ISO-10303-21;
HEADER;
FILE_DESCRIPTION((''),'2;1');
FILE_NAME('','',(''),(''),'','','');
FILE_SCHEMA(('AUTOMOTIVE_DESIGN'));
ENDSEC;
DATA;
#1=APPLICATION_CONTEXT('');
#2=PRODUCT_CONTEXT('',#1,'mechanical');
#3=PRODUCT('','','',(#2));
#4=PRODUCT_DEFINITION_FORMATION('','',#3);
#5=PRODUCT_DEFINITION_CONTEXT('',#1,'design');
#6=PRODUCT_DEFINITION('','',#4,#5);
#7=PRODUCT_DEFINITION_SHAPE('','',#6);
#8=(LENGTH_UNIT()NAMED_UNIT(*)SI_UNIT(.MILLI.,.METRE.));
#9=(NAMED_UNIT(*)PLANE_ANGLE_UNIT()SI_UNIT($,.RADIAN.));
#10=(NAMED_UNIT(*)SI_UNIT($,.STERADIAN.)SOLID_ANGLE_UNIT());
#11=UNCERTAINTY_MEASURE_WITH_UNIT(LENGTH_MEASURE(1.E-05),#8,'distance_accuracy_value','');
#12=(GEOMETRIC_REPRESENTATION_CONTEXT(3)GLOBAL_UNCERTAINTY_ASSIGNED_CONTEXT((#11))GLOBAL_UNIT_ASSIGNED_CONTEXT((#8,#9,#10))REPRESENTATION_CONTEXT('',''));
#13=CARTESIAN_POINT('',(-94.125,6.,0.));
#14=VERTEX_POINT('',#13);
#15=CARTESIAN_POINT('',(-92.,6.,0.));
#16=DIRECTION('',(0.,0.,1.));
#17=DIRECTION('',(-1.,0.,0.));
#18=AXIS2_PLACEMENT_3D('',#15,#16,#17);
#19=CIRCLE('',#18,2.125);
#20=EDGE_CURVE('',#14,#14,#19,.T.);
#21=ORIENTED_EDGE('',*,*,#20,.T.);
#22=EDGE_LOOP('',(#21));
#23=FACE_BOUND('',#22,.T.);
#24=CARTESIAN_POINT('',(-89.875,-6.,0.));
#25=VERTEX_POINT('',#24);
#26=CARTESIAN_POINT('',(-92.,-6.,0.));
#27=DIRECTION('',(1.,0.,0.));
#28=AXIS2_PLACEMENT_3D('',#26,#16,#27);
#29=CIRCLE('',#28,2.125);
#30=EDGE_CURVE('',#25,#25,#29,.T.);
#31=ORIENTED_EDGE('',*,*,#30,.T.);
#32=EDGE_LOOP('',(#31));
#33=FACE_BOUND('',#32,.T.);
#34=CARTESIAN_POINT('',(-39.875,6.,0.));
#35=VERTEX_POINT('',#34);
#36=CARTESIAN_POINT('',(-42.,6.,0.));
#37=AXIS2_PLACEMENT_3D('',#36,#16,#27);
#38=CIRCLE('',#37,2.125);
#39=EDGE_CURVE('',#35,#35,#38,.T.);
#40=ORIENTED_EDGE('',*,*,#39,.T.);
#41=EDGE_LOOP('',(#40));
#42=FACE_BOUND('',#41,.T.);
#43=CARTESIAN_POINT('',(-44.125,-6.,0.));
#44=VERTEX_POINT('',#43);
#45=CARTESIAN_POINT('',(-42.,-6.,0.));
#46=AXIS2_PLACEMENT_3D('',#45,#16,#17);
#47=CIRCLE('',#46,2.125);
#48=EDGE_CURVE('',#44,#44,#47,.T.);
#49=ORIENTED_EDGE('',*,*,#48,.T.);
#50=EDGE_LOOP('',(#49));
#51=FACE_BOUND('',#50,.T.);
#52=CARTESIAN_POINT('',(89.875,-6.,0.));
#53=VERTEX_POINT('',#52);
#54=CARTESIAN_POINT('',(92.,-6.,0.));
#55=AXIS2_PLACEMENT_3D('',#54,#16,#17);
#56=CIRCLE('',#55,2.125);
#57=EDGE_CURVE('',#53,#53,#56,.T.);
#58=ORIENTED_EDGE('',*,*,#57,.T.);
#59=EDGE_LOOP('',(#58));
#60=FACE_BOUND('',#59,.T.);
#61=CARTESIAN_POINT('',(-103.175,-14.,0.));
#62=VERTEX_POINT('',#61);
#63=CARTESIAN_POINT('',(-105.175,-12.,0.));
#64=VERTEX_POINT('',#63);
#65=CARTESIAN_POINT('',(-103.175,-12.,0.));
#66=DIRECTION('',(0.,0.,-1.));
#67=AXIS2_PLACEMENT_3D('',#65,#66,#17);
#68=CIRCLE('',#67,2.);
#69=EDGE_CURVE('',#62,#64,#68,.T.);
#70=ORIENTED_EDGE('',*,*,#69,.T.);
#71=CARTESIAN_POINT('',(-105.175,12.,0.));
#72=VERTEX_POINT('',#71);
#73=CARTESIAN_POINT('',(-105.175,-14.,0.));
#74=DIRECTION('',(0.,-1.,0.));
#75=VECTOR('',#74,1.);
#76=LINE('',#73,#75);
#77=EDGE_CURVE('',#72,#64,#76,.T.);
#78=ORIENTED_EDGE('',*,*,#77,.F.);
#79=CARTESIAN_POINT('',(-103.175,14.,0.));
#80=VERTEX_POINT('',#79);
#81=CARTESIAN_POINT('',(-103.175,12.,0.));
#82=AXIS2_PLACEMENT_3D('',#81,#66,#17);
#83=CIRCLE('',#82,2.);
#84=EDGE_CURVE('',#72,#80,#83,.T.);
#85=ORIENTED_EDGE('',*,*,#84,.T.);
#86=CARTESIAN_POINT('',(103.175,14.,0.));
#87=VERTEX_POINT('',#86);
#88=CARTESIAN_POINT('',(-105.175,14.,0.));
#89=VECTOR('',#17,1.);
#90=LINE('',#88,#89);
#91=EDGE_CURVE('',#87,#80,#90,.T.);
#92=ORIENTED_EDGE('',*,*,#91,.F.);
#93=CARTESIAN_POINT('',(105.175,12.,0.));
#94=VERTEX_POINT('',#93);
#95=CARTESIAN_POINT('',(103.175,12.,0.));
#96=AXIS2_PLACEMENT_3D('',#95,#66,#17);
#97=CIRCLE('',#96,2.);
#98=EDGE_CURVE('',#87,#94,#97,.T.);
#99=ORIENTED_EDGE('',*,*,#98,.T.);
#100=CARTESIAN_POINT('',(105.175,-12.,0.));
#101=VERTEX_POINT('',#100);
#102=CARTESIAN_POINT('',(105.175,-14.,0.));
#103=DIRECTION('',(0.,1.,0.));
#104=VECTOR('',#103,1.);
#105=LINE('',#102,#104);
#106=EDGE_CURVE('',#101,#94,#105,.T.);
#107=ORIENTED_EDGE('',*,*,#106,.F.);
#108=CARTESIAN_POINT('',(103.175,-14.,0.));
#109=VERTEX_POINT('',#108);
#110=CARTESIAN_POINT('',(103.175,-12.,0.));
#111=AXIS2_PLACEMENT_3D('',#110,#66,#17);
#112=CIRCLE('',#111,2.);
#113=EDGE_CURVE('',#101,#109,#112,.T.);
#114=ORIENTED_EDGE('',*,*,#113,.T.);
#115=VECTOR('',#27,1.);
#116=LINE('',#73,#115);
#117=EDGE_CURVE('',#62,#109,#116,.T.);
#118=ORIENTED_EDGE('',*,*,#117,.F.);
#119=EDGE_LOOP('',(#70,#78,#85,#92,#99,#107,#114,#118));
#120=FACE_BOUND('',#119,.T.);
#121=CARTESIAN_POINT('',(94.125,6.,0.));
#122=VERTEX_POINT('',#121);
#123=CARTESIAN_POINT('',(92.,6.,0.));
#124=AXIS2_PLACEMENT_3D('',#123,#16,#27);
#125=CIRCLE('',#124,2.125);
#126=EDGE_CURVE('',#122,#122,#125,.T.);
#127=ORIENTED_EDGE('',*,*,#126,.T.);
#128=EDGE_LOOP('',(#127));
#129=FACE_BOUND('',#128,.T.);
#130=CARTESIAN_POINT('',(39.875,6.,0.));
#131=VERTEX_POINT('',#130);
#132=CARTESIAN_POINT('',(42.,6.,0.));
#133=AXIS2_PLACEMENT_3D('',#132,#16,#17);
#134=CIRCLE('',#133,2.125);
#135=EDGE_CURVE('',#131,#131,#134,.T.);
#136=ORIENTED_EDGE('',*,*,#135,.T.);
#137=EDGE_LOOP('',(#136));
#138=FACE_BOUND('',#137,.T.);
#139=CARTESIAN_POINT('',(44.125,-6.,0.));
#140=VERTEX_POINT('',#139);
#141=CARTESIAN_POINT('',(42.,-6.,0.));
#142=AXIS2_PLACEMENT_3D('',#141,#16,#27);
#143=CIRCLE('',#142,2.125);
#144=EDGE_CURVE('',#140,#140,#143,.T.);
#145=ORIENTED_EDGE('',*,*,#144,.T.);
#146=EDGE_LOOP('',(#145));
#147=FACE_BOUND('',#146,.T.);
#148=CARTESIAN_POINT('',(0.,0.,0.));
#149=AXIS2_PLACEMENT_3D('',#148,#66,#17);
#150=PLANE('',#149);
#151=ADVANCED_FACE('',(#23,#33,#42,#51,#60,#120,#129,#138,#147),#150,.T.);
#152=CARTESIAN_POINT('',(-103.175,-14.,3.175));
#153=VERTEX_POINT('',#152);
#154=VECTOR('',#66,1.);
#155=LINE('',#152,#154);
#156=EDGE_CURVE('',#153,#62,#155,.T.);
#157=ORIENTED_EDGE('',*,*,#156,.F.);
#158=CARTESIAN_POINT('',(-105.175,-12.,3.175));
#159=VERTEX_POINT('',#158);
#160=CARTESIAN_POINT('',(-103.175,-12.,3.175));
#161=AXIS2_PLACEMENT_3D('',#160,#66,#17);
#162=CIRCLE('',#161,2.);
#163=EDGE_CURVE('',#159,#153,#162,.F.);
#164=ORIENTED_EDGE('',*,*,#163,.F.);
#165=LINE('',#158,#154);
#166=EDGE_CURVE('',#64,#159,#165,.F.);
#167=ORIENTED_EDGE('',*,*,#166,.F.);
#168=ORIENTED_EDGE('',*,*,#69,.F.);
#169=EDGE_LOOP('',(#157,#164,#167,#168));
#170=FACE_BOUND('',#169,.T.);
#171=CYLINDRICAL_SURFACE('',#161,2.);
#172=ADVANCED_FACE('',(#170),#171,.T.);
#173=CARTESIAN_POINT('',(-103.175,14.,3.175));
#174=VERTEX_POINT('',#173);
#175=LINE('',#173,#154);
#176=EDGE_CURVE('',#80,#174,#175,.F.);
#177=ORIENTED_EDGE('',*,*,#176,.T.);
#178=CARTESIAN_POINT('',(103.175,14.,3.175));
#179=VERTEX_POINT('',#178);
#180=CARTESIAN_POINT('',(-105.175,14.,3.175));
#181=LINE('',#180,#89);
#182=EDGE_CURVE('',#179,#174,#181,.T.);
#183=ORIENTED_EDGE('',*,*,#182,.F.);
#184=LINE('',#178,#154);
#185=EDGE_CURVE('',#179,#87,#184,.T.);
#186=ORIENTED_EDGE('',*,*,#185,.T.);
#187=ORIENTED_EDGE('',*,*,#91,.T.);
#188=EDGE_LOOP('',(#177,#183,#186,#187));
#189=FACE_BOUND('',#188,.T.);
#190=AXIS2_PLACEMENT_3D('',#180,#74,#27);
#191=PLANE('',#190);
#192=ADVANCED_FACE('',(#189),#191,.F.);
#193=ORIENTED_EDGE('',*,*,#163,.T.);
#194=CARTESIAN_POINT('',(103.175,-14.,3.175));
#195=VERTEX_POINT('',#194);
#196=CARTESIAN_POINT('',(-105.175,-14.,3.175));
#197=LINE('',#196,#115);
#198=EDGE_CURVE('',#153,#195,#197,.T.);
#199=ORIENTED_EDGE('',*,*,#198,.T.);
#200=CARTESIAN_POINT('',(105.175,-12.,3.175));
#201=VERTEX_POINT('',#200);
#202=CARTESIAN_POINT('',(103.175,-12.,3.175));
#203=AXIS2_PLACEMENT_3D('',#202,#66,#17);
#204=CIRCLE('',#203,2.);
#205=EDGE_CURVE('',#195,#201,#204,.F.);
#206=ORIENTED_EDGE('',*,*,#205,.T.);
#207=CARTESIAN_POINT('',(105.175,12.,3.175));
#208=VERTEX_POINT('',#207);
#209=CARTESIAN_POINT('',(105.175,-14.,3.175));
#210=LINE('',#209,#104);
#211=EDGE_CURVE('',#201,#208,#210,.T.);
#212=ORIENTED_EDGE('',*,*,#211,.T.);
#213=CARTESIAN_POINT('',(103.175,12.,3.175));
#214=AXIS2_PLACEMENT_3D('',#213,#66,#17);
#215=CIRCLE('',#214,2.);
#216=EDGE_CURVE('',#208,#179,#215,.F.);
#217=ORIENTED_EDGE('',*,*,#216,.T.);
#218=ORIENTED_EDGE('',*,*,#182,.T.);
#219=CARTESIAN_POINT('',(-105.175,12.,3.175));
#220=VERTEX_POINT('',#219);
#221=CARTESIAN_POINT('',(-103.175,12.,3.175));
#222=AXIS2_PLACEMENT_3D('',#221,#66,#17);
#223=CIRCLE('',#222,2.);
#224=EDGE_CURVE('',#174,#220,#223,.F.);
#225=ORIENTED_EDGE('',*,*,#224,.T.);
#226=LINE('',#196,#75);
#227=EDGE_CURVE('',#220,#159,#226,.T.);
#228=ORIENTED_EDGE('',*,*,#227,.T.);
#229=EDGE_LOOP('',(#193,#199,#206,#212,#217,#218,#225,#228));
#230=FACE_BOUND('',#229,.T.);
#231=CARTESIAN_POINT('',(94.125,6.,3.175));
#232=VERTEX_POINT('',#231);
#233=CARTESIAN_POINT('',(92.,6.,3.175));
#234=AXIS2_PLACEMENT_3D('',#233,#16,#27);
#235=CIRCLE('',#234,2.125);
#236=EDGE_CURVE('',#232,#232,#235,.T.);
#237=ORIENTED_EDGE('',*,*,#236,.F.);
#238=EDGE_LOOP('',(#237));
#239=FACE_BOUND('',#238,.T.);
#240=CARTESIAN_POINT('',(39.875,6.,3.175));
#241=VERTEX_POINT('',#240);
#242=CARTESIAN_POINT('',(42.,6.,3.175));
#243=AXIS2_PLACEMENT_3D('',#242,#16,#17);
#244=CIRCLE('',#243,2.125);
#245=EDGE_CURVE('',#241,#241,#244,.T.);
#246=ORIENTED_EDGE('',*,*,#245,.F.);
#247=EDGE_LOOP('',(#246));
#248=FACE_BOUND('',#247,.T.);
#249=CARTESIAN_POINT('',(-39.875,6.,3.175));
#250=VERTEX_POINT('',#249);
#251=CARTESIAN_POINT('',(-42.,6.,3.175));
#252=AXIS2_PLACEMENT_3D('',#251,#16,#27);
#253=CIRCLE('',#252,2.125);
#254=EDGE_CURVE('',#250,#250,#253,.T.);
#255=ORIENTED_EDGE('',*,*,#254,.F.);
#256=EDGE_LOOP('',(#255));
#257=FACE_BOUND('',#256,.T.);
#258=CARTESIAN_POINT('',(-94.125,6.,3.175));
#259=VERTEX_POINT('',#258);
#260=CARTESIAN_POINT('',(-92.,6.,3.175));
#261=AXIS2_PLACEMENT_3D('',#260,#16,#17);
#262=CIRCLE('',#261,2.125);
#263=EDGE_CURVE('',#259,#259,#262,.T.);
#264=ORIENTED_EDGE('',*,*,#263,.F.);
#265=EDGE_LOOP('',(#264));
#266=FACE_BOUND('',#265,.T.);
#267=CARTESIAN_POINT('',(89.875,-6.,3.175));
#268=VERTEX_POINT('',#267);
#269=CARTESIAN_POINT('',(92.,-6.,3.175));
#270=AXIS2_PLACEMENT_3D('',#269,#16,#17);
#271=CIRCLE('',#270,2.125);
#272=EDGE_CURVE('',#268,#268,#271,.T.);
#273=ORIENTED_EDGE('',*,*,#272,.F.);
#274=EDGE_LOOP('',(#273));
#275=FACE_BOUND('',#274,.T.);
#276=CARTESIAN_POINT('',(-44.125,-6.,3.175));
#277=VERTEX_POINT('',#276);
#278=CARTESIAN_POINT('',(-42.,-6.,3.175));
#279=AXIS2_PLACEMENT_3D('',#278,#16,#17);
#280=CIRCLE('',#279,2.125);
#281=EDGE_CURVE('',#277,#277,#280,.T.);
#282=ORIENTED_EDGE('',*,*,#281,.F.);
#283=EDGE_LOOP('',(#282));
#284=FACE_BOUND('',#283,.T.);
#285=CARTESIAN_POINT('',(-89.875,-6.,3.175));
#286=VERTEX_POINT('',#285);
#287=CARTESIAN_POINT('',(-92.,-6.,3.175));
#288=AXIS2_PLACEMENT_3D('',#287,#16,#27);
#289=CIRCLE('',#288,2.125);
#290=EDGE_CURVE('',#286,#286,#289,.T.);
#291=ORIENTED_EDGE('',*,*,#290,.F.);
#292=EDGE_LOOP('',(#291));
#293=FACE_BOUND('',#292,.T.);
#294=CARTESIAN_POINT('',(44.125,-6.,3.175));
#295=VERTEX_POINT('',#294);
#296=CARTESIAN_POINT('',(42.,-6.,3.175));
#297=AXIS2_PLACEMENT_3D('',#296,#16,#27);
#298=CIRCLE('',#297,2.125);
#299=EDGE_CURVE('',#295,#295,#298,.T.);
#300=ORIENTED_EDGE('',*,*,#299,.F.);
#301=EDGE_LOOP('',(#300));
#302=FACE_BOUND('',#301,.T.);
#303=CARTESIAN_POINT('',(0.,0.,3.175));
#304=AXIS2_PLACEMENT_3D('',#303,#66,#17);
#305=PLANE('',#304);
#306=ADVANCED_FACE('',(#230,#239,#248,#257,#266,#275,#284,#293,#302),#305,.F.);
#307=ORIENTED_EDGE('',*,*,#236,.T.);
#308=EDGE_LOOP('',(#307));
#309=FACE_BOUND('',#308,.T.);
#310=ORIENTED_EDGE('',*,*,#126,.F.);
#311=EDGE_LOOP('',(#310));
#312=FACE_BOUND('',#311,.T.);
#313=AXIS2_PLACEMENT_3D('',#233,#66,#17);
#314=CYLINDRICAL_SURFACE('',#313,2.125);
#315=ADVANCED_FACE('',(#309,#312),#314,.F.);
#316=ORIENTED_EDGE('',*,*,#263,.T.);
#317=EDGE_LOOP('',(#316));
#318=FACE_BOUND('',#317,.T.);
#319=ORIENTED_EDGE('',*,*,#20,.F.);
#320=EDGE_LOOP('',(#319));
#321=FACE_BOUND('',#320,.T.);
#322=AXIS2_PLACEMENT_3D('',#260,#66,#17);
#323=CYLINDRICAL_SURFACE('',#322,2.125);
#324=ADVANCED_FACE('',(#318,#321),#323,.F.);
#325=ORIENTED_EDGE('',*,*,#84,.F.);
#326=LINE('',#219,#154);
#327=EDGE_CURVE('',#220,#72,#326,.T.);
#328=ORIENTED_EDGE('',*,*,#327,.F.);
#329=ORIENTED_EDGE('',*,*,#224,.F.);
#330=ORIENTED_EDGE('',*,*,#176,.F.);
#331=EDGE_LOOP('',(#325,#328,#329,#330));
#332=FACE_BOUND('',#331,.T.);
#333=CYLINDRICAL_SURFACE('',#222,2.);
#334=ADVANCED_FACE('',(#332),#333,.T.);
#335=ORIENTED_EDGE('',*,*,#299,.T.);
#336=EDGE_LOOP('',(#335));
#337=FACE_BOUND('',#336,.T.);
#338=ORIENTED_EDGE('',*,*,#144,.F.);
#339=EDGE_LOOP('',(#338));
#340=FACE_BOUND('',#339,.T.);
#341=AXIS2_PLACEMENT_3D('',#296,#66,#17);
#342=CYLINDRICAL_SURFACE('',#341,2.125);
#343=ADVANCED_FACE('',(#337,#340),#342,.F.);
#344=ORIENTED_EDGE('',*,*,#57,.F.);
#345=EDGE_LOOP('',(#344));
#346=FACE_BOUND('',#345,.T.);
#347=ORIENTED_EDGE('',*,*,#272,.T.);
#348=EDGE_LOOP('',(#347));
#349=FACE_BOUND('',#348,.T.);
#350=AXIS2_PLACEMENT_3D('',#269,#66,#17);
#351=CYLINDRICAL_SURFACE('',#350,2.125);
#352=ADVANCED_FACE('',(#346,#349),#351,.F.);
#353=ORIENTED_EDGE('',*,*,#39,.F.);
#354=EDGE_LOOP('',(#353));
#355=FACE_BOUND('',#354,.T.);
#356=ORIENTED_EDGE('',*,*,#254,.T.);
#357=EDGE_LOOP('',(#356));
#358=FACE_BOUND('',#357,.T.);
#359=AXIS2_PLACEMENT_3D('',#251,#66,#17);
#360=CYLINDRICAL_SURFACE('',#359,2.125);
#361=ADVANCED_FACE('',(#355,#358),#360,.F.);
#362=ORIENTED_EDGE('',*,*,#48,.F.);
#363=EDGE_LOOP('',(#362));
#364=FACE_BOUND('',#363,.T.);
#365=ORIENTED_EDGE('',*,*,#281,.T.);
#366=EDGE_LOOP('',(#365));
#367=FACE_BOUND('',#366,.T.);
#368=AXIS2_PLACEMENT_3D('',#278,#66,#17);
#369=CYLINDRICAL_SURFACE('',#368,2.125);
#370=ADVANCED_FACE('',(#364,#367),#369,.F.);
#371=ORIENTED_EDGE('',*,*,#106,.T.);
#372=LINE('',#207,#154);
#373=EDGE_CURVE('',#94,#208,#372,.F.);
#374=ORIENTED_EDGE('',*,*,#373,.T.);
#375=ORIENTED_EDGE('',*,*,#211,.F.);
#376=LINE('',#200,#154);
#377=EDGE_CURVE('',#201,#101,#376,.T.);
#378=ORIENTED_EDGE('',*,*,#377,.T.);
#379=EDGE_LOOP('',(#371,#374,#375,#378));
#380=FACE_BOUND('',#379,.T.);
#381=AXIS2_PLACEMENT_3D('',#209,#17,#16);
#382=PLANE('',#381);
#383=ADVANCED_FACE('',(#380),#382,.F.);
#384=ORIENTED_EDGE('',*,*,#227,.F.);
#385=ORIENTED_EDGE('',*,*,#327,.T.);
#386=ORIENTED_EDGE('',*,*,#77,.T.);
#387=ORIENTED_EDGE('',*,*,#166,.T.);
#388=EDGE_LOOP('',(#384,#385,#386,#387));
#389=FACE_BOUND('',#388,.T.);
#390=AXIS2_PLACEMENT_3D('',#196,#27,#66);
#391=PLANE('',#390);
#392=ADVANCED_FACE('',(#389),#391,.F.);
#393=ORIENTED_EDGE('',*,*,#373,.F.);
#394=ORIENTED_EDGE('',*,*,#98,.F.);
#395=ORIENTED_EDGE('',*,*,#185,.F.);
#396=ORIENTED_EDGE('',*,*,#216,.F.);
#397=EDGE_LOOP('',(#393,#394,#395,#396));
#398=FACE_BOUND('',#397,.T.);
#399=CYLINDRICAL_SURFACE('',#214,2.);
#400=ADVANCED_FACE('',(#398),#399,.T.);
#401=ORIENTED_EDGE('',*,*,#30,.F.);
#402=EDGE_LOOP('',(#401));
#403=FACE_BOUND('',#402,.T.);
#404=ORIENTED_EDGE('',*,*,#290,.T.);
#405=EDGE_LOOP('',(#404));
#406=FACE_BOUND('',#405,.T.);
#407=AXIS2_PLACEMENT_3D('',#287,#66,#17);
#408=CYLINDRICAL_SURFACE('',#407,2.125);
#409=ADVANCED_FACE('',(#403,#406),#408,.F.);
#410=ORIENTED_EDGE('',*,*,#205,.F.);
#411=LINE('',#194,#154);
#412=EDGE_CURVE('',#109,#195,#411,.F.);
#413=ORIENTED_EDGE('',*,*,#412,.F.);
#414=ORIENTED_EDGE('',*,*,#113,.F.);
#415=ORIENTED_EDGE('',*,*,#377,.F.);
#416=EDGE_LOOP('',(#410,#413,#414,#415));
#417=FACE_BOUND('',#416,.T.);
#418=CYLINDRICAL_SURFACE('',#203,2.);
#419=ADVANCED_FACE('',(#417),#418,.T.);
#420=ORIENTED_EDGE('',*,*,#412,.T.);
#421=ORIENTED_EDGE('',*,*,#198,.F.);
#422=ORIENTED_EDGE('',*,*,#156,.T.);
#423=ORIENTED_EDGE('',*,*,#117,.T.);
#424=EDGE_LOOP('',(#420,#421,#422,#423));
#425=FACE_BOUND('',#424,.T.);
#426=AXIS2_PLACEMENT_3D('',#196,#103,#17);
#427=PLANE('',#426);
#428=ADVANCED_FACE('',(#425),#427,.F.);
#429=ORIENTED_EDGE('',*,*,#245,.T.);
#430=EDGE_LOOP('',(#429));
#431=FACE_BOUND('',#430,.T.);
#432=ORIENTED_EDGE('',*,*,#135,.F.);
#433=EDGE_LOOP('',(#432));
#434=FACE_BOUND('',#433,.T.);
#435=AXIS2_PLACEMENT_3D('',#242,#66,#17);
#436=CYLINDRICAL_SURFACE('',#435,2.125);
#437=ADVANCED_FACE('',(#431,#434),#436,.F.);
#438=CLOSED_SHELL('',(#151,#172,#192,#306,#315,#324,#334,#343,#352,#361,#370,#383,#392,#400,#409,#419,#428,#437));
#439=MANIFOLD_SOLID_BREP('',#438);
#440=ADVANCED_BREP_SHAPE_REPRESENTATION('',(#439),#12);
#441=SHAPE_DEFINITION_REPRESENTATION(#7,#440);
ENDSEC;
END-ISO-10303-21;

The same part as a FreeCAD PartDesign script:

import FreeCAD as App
import Part
import Sketcher


def edges_at(feature, points):
    """Names of the edges that pass closest to the given points."""
    edges = feature.Shape.Edges
    near = lambda p: min(range(len(edges)), key=lambda i: edges[i].distToShape(Part.Vertex(*p))[0])
    return sorted({f"Edge{near(p) + 1}" for p in points})


def add_polygon(sketch, points):
    """Adds a closed chain of lines whose ends are joined by coincident constraints."""
    first, n = sketch.GeometryCount, len(points)
    for a, b in zip(points, points[1:] + points[:1]):
        sketch.addGeometry(Part.LineSegment(App.Vector(*a, 0), App.Vector(*b, 0)), False)
    for i in range(n):
        sketch.addConstraint(Sketcher.Constraint("Coincident", first + i, 2, first + (i + 1) % n, 1))

doc = App.newDocument("Part")
body = doc.addObject("PartDesign::Body", "Body")

# Sketch on XY plane
sketch1 = body.newObject("Sketcher::SketchObject", "Sketch")
sketch1.AttachmentSupport = (doc.getObject("XY_Plane"), [""])
sketch1.MapMode = "FlatFace"
add_polygon(sketch1, [(-105.175, 14), (-105.175, -14), (105.175, -14), (105.175, 14)])  # lines 0-3
sketch1.addGeometry(Part.Circle(App.Vector(-92, -6, 0), App.Vector(0, 0, 1), 2.125), False)  # 4
sketch1.addGeometry(Part.Circle(App.Vector(-42, -6, 0), App.Vector(0, 0, 1), 2.125), False)  # 5
sketch1.addGeometry(Part.Circle(App.Vector(42, -6, 0), App.Vector(0, 0, 1), 2.125), False)  # 6
sketch1.addGeometry(Part.Circle(App.Vector(92, -6, 0), App.Vector(0, 0, 1), 2.125), False)  # 7
sketch1.addGeometry(Part.Circle(App.Vector(-92, 6, 0), App.Vector(0, 0, 1), 2.125), False)  # 8
sketch1.addGeometry(Part.Circle(App.Vector(-42, 6, 0), App.Vector(0, 0, 1), 2.125), False)  # 9
sketch1.addGeometry(Part.Circle(App.Vector(42, 6, 0), App.Vector(0, 0, 1), 2.125), False)  # 10
sketch1.addGeometry(Part.Circle(App.Vector(92, 6, 0), App.Vector(0, 0, 1), 2.125), False)  # 11
sketch1.addConstraint([
    Sketcher.Constraint("Vertical", 0),
    Sketcher.Constraint("Horizontal", 1),
    Sketcher.Constraint("Vertical", 2),
    Sketcher.Constraint("Horizontal", 3),
    Sketcher.Constraint("Equal", 4, 5),
    Sketcher.Constraint("Equal", 5, 6),
    Sketcher.Constraint("Equal", 6, 7),
    Sketcher.Constraint("Equal", 7, 8),
    Sketcher.Constraint("Equal", 8, 9),
    Sketcher.Constraint("Equal", 9, 10),
    Sketcher.Constraint("Equal", 10, 11),
    Sketcher.Constraint("Symmetric", 7, 3, 8, 3, -1, 1),
    Sketcher.Constraint("Symmetric", 6, 3, 9, 3, -1, 1),
    Sketcher.Constraint("Symmetric", 5, 3, 10, 3, -1, 1),
    Sketcher.Constraint("Symmetric", 4, 3, 11, 3, -1, 1),
    Sketcher.Constraint("Symmetric", 0, 2, 2, 2, -1, 1),
    Sketcher.Constraint("Symmetric", 5, 3, 6, 3, -2),
    Sketcher.Constraint("Symmetric", 4, 3, 7, 3, -2),
    Sketcher.Constraint("Horizontal", 4, 3, 5, 3),
    Sketcher.Constraint("Diameter", 4, 4.25),
    Sketcher.Constraint("DistanceY", 0, 2, 0, 1, 28.0),
    Sketcher.Constraint("DistanceX", 4, 3, -1, 1, 92.0),
    Sketcher.Constraint("DistanceY", 4, 3, -1, 1, 6.0),
    Sketcher.Constraint("DistanceX", 5, 3, -1, 1, 42.0),
    Sketcher.Constraint("DistanceX", 1, 1, 1, 2, 210.35),
])
pad1 = body.newObject("PartDesign::Pad", "Pad")
pad1.Profile = sketch1
pad1.Length = 3.175
doc.recompute()

fillet = body.newObject("PartDesign::Fillet", "Fillet")
fillet.Base = (pad1, edges_at(pad1, [
    (105.175, -14, 1.587),
    (-105.175, -14, 1.587),
    (-105.175, 14, 1.587),
    (105.175, 14, 1.587),
]))
fillet.Radius = 2

doc.recompute()
